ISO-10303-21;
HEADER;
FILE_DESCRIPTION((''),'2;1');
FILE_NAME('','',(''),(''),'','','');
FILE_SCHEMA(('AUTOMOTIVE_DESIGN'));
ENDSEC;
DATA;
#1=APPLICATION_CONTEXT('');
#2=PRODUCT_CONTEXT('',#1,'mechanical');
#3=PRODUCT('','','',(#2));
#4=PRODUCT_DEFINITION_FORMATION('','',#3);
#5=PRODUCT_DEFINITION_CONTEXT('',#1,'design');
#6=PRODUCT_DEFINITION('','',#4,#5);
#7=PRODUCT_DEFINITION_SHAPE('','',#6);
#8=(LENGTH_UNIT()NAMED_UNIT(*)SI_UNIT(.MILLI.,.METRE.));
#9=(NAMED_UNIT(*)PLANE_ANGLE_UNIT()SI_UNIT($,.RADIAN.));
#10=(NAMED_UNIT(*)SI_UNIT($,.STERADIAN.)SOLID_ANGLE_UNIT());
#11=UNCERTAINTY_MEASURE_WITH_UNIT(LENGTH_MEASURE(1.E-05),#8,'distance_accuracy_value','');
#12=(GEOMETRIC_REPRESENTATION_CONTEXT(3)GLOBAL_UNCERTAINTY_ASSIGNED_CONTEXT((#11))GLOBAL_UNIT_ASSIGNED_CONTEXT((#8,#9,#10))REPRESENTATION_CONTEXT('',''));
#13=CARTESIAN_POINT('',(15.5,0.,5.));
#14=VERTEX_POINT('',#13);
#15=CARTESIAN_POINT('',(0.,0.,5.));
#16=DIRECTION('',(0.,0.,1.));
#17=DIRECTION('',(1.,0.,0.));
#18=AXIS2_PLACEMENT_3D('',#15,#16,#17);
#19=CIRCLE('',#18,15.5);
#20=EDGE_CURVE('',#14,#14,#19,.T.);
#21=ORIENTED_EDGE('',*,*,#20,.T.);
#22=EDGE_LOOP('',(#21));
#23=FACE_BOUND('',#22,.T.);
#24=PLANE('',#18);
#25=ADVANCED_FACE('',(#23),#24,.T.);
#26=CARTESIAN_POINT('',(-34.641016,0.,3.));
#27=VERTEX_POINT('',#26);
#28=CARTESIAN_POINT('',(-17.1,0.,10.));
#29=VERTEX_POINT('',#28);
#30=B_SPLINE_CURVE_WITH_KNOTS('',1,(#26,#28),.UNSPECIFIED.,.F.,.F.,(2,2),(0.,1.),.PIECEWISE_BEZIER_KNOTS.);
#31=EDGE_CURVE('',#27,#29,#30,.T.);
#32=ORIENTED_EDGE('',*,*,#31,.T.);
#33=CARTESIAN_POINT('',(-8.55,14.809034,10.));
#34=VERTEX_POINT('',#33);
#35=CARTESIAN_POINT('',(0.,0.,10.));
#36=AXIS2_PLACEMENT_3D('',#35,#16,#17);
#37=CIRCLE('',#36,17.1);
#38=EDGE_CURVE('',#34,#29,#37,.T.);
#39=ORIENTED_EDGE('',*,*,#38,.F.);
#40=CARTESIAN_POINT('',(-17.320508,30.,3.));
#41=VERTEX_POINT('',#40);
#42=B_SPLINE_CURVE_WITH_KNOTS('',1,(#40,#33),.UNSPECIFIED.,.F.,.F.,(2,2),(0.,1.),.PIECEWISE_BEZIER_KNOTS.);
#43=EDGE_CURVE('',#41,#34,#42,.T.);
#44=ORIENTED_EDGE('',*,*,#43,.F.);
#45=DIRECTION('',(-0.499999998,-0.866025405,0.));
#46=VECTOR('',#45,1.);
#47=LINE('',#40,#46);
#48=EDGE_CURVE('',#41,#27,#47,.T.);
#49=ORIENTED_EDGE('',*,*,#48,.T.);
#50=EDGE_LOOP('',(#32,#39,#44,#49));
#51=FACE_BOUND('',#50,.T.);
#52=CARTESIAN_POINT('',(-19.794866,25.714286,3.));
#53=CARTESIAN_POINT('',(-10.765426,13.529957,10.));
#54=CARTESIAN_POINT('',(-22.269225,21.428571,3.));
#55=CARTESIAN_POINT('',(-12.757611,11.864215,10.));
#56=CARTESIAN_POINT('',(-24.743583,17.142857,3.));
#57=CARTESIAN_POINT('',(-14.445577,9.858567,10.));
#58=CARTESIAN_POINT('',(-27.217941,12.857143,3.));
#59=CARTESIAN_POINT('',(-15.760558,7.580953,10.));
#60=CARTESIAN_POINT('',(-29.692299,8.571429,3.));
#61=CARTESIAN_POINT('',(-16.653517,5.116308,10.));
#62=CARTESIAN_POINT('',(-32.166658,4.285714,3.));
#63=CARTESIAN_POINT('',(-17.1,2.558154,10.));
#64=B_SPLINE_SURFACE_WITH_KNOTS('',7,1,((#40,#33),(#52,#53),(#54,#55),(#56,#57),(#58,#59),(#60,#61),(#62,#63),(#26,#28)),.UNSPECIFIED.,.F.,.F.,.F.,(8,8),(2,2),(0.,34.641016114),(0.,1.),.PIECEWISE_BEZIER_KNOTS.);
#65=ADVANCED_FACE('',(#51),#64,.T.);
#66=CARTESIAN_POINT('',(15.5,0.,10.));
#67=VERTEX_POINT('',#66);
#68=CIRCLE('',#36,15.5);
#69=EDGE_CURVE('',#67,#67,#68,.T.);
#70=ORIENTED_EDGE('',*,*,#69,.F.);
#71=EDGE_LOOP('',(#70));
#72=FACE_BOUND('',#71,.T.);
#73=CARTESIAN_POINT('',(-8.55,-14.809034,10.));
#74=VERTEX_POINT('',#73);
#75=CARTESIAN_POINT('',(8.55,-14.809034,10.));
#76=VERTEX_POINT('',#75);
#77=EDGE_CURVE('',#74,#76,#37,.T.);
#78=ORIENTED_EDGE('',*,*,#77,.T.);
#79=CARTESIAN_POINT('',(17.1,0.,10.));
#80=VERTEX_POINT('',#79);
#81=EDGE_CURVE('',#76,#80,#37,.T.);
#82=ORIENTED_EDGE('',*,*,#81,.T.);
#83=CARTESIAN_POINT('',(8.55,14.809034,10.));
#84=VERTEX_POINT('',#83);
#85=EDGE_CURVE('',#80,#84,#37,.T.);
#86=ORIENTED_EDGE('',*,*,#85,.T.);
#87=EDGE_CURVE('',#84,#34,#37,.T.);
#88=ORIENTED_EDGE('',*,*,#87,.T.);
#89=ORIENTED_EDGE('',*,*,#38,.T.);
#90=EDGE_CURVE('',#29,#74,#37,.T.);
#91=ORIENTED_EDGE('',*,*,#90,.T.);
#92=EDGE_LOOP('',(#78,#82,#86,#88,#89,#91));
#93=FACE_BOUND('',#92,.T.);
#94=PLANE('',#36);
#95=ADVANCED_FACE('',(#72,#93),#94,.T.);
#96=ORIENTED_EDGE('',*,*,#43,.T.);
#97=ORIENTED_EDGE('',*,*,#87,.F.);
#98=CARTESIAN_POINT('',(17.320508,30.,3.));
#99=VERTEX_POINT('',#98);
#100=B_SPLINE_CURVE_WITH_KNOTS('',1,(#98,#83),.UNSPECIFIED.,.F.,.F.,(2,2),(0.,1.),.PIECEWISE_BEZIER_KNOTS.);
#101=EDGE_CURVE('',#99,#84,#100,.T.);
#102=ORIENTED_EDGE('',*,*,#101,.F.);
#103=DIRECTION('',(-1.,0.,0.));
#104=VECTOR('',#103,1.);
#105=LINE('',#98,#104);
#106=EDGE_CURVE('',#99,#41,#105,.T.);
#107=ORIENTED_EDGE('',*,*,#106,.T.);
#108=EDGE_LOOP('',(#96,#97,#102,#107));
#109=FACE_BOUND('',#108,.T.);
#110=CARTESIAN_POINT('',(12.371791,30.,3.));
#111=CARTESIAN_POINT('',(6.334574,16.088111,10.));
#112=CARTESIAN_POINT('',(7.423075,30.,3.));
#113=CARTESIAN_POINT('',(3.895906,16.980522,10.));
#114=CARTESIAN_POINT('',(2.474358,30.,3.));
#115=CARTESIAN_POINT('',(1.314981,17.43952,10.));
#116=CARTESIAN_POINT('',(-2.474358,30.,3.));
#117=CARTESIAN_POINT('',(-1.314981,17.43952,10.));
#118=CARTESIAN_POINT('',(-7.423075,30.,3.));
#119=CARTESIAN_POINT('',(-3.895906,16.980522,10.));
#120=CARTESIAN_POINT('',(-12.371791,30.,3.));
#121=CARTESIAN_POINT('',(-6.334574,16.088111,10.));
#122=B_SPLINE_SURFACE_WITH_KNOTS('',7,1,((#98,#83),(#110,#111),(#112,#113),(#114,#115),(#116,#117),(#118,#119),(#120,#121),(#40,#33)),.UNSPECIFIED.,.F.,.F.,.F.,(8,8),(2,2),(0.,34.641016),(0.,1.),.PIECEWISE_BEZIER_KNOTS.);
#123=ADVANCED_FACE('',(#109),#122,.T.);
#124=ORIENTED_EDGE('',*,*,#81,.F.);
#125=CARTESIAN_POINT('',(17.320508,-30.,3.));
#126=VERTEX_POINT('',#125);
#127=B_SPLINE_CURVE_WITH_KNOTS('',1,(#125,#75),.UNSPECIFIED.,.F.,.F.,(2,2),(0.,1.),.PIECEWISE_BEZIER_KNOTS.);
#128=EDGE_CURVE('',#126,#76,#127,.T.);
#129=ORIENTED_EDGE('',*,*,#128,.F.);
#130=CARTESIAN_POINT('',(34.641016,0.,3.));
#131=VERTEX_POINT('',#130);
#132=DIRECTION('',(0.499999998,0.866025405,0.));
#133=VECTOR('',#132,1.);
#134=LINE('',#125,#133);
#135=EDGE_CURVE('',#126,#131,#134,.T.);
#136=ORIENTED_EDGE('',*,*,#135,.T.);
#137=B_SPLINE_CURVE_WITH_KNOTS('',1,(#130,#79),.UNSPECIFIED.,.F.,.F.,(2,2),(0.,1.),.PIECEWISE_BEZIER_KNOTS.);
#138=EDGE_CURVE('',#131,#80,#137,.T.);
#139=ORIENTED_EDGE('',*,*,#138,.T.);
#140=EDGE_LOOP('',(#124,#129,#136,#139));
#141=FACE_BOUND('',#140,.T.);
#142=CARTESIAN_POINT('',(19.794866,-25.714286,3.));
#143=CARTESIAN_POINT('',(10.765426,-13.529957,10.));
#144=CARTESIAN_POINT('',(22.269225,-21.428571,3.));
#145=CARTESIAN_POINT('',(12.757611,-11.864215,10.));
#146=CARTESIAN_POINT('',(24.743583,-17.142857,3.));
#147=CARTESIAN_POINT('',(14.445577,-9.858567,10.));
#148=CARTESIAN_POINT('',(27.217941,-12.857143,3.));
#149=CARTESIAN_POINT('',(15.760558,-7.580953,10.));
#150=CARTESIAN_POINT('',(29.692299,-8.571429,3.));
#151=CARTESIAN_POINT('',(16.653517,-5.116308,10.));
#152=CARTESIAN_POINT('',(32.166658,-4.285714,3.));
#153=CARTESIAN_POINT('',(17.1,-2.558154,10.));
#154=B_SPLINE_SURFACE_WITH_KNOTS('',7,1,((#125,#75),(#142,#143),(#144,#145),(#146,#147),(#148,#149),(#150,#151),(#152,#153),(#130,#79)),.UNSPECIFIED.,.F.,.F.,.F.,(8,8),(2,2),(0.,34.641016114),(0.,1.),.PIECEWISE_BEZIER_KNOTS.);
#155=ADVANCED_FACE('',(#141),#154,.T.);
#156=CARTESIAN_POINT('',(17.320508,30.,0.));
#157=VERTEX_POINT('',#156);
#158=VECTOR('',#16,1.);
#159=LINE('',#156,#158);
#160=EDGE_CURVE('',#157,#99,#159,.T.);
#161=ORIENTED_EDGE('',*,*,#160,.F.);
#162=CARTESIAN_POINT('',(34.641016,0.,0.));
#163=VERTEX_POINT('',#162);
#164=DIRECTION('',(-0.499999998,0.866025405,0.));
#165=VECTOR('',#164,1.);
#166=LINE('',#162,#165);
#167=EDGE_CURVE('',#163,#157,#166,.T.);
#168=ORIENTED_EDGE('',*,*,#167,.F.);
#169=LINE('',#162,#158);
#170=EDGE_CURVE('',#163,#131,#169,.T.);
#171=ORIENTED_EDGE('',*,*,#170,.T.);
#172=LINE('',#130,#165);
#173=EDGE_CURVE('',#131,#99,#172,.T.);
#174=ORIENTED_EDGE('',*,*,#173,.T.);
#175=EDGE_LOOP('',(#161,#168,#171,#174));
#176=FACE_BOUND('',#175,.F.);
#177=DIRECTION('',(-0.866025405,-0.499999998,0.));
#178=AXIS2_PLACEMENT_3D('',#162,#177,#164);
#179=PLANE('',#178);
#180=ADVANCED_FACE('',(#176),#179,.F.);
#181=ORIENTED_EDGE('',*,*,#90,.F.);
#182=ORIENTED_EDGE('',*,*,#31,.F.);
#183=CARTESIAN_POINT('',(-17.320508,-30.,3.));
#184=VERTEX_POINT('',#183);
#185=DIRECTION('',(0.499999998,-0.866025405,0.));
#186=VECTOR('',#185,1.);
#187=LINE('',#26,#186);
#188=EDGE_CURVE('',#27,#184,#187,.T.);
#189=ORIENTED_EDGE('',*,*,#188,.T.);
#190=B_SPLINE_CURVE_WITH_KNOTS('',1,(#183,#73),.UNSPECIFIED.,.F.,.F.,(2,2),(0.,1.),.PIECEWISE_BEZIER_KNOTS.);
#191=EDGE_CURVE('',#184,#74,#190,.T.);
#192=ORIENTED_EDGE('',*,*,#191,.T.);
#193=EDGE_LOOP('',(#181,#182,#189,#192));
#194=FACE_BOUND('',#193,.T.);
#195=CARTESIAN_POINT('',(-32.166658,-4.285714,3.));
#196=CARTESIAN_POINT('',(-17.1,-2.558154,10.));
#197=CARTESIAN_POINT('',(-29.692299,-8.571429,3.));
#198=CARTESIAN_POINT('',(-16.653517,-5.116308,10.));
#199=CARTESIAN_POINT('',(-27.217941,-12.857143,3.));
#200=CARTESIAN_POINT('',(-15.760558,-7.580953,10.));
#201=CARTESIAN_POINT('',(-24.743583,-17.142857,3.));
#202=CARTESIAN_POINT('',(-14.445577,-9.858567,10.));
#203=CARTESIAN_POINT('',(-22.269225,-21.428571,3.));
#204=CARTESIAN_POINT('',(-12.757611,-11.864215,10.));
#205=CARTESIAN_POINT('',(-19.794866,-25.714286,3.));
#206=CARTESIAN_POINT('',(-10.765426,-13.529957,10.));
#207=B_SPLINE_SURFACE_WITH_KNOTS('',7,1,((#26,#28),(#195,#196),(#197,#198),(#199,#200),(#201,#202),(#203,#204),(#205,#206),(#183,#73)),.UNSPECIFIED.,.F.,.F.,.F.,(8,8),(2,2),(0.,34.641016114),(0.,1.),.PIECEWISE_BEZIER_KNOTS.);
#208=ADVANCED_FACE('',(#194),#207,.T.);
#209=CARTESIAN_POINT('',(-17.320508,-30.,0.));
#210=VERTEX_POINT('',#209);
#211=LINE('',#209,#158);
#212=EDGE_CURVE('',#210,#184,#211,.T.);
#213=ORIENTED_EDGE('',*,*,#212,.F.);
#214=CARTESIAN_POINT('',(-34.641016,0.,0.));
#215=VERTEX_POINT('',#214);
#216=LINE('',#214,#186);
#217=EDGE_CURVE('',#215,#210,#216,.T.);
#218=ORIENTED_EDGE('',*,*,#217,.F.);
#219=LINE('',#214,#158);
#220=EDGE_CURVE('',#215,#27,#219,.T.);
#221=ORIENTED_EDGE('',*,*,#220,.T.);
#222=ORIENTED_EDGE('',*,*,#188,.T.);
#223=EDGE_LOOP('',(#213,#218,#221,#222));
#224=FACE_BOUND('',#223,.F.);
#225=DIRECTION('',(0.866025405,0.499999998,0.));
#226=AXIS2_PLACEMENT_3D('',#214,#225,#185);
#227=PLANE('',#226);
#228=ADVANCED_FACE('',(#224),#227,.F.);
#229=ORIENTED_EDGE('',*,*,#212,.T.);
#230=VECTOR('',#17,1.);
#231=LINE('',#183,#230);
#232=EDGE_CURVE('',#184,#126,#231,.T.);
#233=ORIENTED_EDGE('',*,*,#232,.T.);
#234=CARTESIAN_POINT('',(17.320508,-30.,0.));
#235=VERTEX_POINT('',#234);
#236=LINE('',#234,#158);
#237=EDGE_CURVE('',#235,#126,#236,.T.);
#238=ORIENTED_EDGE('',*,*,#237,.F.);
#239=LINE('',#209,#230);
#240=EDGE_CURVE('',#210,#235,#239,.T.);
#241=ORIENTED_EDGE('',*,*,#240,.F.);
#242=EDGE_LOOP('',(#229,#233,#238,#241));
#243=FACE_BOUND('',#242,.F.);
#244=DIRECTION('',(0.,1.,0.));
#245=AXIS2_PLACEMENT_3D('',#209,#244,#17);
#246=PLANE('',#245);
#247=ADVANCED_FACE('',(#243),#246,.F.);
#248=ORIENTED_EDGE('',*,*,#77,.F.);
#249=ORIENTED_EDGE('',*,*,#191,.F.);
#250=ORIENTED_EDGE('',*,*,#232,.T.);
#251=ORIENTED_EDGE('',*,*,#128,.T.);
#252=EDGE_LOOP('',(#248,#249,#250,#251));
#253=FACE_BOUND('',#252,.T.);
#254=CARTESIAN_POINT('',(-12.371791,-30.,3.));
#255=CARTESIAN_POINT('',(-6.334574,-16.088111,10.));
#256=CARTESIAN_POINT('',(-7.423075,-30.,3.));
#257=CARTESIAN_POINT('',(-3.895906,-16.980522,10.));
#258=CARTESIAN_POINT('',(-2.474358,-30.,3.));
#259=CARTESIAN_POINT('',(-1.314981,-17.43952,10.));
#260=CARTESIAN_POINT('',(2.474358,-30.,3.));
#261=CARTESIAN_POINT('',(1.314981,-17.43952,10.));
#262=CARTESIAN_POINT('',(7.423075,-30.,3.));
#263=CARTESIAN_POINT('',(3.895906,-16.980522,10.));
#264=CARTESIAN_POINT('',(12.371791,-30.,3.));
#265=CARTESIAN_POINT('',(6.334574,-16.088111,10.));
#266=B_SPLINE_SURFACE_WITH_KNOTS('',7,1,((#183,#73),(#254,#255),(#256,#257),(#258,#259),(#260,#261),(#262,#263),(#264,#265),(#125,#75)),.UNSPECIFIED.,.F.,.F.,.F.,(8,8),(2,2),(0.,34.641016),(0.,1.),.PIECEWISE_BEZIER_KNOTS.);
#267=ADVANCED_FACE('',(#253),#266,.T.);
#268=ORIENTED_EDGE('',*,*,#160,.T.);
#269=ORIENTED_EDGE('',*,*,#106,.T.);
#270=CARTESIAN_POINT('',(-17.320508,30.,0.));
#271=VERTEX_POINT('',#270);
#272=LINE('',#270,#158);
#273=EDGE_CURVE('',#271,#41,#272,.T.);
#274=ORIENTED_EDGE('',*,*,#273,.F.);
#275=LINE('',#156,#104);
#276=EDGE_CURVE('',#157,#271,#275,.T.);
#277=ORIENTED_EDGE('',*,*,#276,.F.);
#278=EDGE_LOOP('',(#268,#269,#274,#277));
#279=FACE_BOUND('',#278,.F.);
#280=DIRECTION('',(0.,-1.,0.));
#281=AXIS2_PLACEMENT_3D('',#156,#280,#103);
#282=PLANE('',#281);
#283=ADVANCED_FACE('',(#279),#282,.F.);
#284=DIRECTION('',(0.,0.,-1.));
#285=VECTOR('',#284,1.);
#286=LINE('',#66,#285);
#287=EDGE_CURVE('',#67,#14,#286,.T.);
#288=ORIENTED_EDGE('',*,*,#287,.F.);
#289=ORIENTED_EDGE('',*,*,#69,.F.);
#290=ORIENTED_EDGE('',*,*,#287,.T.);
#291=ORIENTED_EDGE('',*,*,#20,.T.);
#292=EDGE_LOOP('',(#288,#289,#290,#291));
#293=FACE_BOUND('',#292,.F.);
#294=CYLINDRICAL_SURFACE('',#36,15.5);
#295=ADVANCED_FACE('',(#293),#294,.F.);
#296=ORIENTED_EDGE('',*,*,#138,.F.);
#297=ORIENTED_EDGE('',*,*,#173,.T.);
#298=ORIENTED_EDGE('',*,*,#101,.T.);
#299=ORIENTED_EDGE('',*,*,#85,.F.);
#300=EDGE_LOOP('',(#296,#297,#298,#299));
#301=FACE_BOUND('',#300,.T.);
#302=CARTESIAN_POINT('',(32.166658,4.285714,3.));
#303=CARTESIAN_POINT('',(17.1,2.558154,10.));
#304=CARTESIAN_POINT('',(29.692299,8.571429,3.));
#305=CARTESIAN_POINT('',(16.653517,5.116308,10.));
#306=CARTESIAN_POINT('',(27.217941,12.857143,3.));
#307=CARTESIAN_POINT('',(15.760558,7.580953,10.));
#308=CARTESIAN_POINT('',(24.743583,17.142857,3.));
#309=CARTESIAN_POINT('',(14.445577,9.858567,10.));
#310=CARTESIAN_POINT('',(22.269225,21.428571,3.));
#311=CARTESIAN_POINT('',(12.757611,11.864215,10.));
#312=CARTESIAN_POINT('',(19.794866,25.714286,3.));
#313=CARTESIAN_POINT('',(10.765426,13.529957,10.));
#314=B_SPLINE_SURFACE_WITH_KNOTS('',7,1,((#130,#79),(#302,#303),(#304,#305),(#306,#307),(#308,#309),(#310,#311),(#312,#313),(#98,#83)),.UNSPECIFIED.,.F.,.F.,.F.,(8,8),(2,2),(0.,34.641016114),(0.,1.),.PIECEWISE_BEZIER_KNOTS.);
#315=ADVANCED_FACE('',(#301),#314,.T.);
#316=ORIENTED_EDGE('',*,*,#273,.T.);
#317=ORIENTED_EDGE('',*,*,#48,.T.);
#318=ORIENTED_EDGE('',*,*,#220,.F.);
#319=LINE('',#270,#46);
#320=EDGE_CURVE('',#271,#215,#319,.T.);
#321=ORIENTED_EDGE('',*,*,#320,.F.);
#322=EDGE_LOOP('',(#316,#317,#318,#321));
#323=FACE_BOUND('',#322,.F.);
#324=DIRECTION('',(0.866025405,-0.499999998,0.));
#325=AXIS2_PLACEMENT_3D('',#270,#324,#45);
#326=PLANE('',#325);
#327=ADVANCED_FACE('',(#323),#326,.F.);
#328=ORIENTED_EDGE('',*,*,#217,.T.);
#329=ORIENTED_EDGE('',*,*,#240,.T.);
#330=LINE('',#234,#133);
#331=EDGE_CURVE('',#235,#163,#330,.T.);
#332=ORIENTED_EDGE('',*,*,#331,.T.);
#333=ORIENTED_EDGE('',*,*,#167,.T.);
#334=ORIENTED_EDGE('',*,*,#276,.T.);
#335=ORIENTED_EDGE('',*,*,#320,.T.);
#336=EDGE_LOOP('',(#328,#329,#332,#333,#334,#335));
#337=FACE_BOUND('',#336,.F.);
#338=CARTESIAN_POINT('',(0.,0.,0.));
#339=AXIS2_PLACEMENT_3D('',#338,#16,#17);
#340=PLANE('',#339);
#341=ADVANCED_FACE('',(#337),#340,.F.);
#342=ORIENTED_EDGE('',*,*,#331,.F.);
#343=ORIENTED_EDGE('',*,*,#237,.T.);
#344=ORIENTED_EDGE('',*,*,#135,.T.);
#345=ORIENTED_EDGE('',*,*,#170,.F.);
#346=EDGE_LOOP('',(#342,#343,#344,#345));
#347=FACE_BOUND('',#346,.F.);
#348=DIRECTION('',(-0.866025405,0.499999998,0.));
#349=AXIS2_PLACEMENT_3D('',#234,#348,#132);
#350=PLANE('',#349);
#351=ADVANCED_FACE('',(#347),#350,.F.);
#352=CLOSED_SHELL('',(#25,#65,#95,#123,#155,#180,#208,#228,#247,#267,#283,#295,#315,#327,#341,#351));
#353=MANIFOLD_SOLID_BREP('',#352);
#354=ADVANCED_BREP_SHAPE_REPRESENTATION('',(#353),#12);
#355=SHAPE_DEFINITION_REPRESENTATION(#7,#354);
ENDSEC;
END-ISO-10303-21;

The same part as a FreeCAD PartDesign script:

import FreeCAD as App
import Part
import Sketcher
from FreeCAD import Vector
Q = App.Units.Quantity

doc = App.newDocument("Part")
body = doc.addObject("PartDesign::Body", "Body")

sketch1 = body.newObject("Sketcher::SketchObject", "Sketch")
sketch1.AttachmentSupport = (doc.getObject("XY_Plane"), [""])
sketch1.MapMode = "FlatFace"
sketch1.addGeometry(Part.LineSegment(Vector(17.320508, 30, 0), Vector(-17.320508, 30, 0)), False)
sketch1.addGeometry(Part.LineSegment(Vector(-17.320508, 30, 0), Vector(-34.641016, 0, 0)), False)
sketch1.addGeometry(Part.LineSegment(Vector(-34.641016, 0, 0), Vector(-17.320508, -30, 0)), False)
sketch1.addGeometry(Part.LineSegment(Vector(-17.320508, -30, 0), Vector(17.320508, -30, 0)), False)
sketch1.addGeometry(Part.LineSegment(Vector(17.320508, -30, 0), Vector(34.641016, 0, 0)), False)
sketch1.addGeometry(Part.LineSegment(Vector(34.641016, 0, 0), Vector(17.320508, 30, 0)), False)
sketch1.addConstraint(Sketcher.Constraint("Coincident", 0, 2, 1, 1))
sketch1.addConstraint(Sketcher.Constraint("Coincident", 1, 2, 2, 1))
sketch1.addConstraint(Sketcher.Constraint("Coincident", 2, 2, 3, 1))
sketch1.addConstraint(Sketcher.Constraint("Coincident", 3, 2, 4, 1))
sketch1.addConstraint(Sketcher.Constraint("Coincident", 4, 2, 5, 1))
sketch1.addConstraint(Sketcher.Constraint("Coincident", 5, 2, 0, 1))
sketch1.addConstraint(Sketcher.Constraint("Horizontal", 0))
sketch1.addConstraint(Sketcher.Constraint("Horizontal", 3))
sketch1.addConstraint(Sketcher.Constraint("Symmetric", 0, 2, 3, 2, -1, 1))
sketch1.addConstraint(Sketcher.Constraint("Symmetric", 1, 2, 4, 2, -1, 1))
sketch1.addConstraint(Sketcher.Constraint("PointOnObject", 1, 2, -1))
sketch1.addConstraint(Sketcher.Constraint("Parallel", 2, 5))
sketch1.addConstraint(Sketcher.Constraint("Vertical", 0, 2, 2, 2))
sketch1.addConstraint(Sketcher.Constraint("Angle", 1, Q("-120 deg")))
sketch1.addConstraint(Sketcher.Constraint("DistanceY", -1, 1, 0, 2, Q("30 mm")))
sketch1.addConstraint(Sketcher.Constraint("DistanceX", 0, 2, 0, 1, Q("34.641016 mm")))
pad1 = body.newObject("PartDesign::Pad", "Pad")
pad1.Profile = sketch1
pad1.Length = 3

sketch2 = body.newObject("Sketcher::SketchObject", "Sketch001")
sketch2.AttachmentSupport = (doc.getObject("XY_Plane"), [""])
sketch2.MapMode = "FlatFace"
sketch2.AttachmentOffset = App.Placement(Vector(0, 0, 3), App.Rotation())
sketch2.addGeometry(Part.LineSegment(Vector(17.320508, 30, 0), Vector(-17.320508, 30, 0)), False)
sketch2.addGeometry(Part.LineSegment(Vector(-17.320508, 30, 0), Vector(-34.641016, 0, 0)), False)
sketch2.addGeometry(Part.LineSegment(Vector(-34.641016, 0, 0), Vector(-17.320508, -30, 0)), False)
sketch2.addGeometry(Part.LineSegment(Vector(-17.320508, -30, 0), Vector(17.320508, -30, 0)), False)
sketch2.addGeometry(Part.LineSegment(Vector(17.320508, -30, 0), Vector(34.641016, 0, 0)), False)
sketch2.addGeometry(Part.LineSegment(Vector(34.641016, 0, 0), Vector(17.320508, 30, 0)), False)
sketch2.addConstraint(Sketcher.Constraint("Coincident", 0, 2, 1, 1))
sketch2.addConstraint(Sketcher.Constraint("Coincident", 1, 2, 2, 1))
sketch2.addConstraint(Sketcher.Constraint("Coincident", 2, 2, 3, 1))
sketch2.addConstraint(Sketcher.Constraint("Coincident", 3, 2, 4, 1))
sketch2.addConstraint(Sketcher.Constraint("Coincident", 4, 2, 5, 1))
sketch2.addConstraint(Sketcher.Constraint("Coincident", 5, 2, 0, 1))
sketch2.addConstraint(Sketcher.Constraint("Horizontal", 0))
sketch2.addConstraint(Sketcher.Constraint("Horizontal", 3))
sketch2.addConstraint(Sketcher.Constraint("Symmetric", 0, 2, 3, 2, -1, 1))
sketch2.addConstraint(Sketcher.Constraint("Symmetric", 1, 2, 4, 2, -1, 1))
sketch2.addConstraint(Sketcher.Constraint("PointOnObject", 1, 2, -1))
sketch2.addConstraint(Sketcher.Constraint("Parallel", 2, 5))
sketch2.addConstraint(Sketcher.Constraint("Vertical", 0, 2, 2, 2))
sketch2.addConstraint(Sketcher.Constraint("Angle", 1, Q("-120 deg")))
sketch2.addConstraint(Sketcher.Constraint("DistanceY", -1, 1, 0, 2, Q("30 mm")))
sketch2.addConstraint(Sketcher.Constraint("DistanceX", 0, 2, 0, 1, Q("34.641016 mm")))

sketch3 = body.newObject("Sketcher::SketchObject", "Sketch002")
sketch3.AttachmentSupport = (doc.getObject("XY_Plane"), [""])
sketch3.MapMode = "FlatFace"
sketch3.AttachmentOffset = App.Placement(Vector(0, 0, 10), App.Rotation())
sketch3.addGeometry(Part.Circle(Vector(0, 0, 0), Vector(0, 0, 1), 17.1), False)
sketch3.addConstraint(Sketcher.Constraint("Coincident", 0, 3, -1, 1))
sketch3.addConstraint(Sketcher.Constraint("Diameter", 0, Q("34.2 mm")))

additiveloft = body.newObject("PartDesign::AdditiveLoft", "AdditiveLoft")
additiveloft.Profile = sketch2
additiveloft.Sections = [sketch3]

sketch4 = body.newObject("Sketcher::SketchObject", "Sketch003")
sketch4.AttachmentSupport = (doc.getObject("XY_Plane"), [""])
sketch4.MapMode = "FlatFace"
sketch4.AttachmentOffset = App.Placement(Vector(0, 0, 10), App.Rotation())
sketch4.addGeometry(Part.Circle(Vector(0, 0, 0), Vector(0, 0, 1), 15.5), False)
sketch4.addConstraint(Sketcher.Constraint("Coincident", 0, 3, -1, 1))
sketch4.addConstraint(Sketcher.Constraint("Diameter", 0, Q("31 mm")))
pocket1 = body.newObject("PartDesign::Pocket", "Pocket")
pocket1.Profile = sketch4
pocket1.Length = 5

doc.recompute()
